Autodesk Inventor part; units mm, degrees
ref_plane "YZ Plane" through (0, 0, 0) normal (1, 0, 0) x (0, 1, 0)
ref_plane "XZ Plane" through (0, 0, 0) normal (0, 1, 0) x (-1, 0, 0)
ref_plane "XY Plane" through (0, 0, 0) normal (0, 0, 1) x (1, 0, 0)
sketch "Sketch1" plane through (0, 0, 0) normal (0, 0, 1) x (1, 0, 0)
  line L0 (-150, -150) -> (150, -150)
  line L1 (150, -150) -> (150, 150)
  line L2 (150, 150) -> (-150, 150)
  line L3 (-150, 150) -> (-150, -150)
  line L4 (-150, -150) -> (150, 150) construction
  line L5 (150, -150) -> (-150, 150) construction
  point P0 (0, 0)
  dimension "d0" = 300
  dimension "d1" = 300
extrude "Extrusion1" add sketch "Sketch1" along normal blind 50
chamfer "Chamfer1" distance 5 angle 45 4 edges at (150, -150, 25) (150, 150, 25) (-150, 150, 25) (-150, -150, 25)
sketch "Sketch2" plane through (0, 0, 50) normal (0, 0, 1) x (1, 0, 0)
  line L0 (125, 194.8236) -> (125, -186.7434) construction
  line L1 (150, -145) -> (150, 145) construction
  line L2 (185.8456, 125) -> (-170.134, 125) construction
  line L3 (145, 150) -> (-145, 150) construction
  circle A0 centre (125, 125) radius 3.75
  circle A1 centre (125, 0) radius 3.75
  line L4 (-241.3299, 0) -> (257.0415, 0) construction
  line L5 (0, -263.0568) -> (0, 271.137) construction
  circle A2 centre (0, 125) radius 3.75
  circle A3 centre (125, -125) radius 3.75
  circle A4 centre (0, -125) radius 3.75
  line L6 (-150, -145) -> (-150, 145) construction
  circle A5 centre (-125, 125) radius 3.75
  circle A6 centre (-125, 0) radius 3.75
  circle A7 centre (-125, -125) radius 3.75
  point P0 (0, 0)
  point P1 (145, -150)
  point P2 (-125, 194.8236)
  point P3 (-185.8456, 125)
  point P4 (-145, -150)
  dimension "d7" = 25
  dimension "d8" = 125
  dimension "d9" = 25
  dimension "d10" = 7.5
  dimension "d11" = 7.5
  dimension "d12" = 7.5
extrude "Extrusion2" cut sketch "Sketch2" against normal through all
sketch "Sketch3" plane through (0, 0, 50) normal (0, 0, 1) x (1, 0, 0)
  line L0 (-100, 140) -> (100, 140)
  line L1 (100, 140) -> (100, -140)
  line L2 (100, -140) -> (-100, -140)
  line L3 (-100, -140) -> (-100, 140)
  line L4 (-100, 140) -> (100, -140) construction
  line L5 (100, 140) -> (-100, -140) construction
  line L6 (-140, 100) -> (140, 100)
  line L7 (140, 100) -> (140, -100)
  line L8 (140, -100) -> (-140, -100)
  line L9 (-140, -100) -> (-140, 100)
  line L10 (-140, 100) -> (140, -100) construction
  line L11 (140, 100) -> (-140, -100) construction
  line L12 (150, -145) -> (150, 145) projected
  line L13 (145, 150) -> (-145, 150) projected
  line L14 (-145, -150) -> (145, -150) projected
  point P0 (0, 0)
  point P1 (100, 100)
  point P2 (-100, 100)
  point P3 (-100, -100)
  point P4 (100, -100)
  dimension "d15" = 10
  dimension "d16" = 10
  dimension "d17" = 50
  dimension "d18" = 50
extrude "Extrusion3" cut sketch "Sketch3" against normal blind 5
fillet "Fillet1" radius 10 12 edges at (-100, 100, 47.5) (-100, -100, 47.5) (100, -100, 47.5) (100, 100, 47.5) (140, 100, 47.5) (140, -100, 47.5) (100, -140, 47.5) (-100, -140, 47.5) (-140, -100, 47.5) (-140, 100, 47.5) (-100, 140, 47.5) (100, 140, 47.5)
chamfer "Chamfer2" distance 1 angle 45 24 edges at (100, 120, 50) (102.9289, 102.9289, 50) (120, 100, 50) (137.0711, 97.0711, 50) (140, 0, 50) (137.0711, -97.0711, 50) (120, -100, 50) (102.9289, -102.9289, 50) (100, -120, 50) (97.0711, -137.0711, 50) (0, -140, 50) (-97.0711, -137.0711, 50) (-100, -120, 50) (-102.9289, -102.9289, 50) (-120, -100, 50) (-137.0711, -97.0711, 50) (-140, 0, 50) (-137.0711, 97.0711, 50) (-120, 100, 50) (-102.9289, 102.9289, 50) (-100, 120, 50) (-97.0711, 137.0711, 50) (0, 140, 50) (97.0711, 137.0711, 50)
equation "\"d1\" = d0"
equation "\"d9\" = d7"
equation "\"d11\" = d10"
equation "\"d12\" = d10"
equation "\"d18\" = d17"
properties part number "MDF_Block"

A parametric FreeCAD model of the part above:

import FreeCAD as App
import Part
import Sketcher
from FreeCAD import Vector


def edges_at(feature, points):
    """Names of the edges that pass closest to the given points."""
    edges = feature.Shape.Edges
    near = lambda p: min(range(len(edges)), key=lambda i: edges[i].distToShape(Part.Vertex(*p))[0])
    return sorted({f"Edge{near(p) + 1}" for p in points})


def add_polygon(sketch, points):
    """Adds a closed chain of lines whose ends are joined by coincident constraints."""
    first, n = sketch.GeometryCount, len(points)
    for a, b in zip(points, points[1:] + points[:1]):
        sketch.addGeometry(Part.LineSegment(App.Vector(*a, 0), App.Vector(*b, 0)), False)
    for i in range(n):
        sketch.addConstraint(Sketcher.Constraint("Coincident", first + i, 2, first + (i + 1) % n, 1))

doc = App.newDocument("Part")
params = doc.addObject("Spreadsheet::Sheet", "Params")
for row, (alias, value) in enumerate([
    ("sketch1_width", "300 mm"),
    ("pad1_length", "50 mm"),
    ("chamfer_size", "5 mm"),
    ("sketch2_diameter", "7.5 mm"),
    ("sketch3_width", "200 mm"),
    ("sketch3_width2", "40 mm"),
    ("pocket2_length", "5 mm"),
    ("fillet_radius", "10 mm"),
    ("chamfer2_size", "1 mm"),
], start=1):
    params.set(f"A{row}", alias)
    params.set(f"B{row}", "=" + value)
    params.setAlias(f"B{row}", alias)

body = doc.addObject("PartDesign::Body", "Body")

# Sketch on XY plane
sketch1 = doc.addObject("Sketcher::SketchObject", "Sketch")
body.addObject(sketch1)
sketch1.AttachmentSupport = (doc.XY_Plane, [""])
sketch1.MapMode = "FlatFace"
add_polygon(sketch1, [(-150, 150), (-150, -150), (150, -150), (150, 150)])  # lines 0-3
sketch1.addConstraint(Sketcher.Constraint("Vertical", 0))
sketch1.addConstraint(Sketcher.Constraint("Horizontal", 1))
sketch1.addConstraint(Sketcher.Constraint("Vertical", 2))
sketch1.addConstraint(Sketcher.Constraint("Horizontal", 3))
sketch1.addConstraint(Sketcher.Constraint("Symmetric", 0, 2, 2, 2, -1, 1))
sketch1.addConstraint(Sketcher.Constraint("Equal", 3, 0))
sketch1.addConstraint(Sketcher.Constraint("DistanceX", 1, 1, 1, 2, 300.0))
sketch1.setExpression("Constraints[10]", "Params.sketch1_width")
pad1 = doc.addObject("PartDesign::Pad", "Pad")
body.addObject(pad1)
pad1.Profile = sketch1
pad1.setExpression("Length", "Params.pad1_length")
doc.recompute()

chamfer = doc.addObject("PartDesign::Chamfer", "Chamfer")
body.addObject(chamfer)
chamfer.Base = (pad1, edges_at(pad1, [
    (150, -150, 25),
    (150, 150, 25),
    (-150, 150, 25),
    (-150, -150, 25),
]))
chamfer.setExpression("Size", "Params.chamfer_size")

# Sketch on XY plane
sketch2 = doc.addObject("Sketcher::SketchObject", "Sketch001")
body.addObject(sketch2)
sketch2.AttachmentSupport = (doc.XY_Plane, [""])
sketch2.MapMode = "FlatFace"
sketch2.AttachmentOffset = App.Placement(Vector(0, 0, 50), App.Rotation())
sketch2.addGeometry(Part.Circle(Vector(125, 125, 0), Vector(0, 0, 1), 3.75), False)
sketch2.addGeometry(Part.Circle(Vector(125, 0, 0), Vector(0, 0, 1), 3.75), False)
sketch2.addGeometry(Part.Circle(Vector(0, 125, 0), Vector(0, 0, 1), 3.75), False)
sketch2.addGeometry(Part.Circle(Vector(125, -125, 0), Vector(0, 0, 1), 3.75), False)
sketch2.addGeometry(Part.Circle(Vector(0, -125, 0), Vector(0, 0, 1), 3.75), False)
sketch2.addGeometry(Part.Circle(Vector(-125, 125, 0), Vector(0, 0, 1), 3.75), False)
sketch2.addGeometry(Part.Circle(Vector(-125, 0, 0), Vector(0, 0, 1), 3.75), False)
sketch2.addGeometry(Part.Circle(Vector(-125, -125, 0), Vector(0, 0, 1), 3.75), False)
sketch2.addConstraint(Sketcher.Constraint("Equal", 0, 1))
sketch2.addConstraint(Sketcher.Constraint("Equal", 1, 2))
sketch2.addConstraint(Sketcher.Constraint("Equal", 2, 3))
sketch2.addConstraint(Sketcher.Constraint("Equal", 3, 4))
sketch2.addConstraint(Sketcher.Constraint("Equal", 4, 5))
sketch2.addConstraint(Sketcher.Constraint("Equal", 5, 6))
sketch2.addConstraint(Sketcher.Constraint("Equal", 6, 7))
sketch2.addConstraint(Sketcher.Constraint("Symmetric", 2, 3, 4, 3, -1, 1))
sketch2.addConstraint(Sketcher.Constraint("Symmetric", 3, 3, 5, 3, -1, 1))
sketch2.addConstraint(Sketcher.Constraint("Symmetric", 1, 3, 6, 3, -1, 1))
sketch2.addConstraint(Sketcher.Constraint("Symmetric", 0, 3, 7, 3, -1, 1))
sketch2.addConstraint(Sketcher.Constraint("Symmetric", 0, 3, 5, 3, -2))
sketch2.addConstraint(Sketcher.Constraint("PointOnObject", 1, 3, -1))
sketch2.addConstraint(Sketcher.Constraint("PointOnObject", 2, 3, -2))
sketch2.addConstraint(Sketcher.Constraint("Horizontal", 0, 3, 2, 3))
sketch2.addConstraint(Sketcher.Constraint("Vertical", 0, 3, 1, 3))
sketch2.addConstraint(Sketcher.Constraint("Diameter", 0, 7.5))
sketch2.addConstraint(Sketcher.Constraint("DistanceX", -1, 1, 0, 3, 125.0))
sketch2.addConstraint(Sketcher.Constraint("DistanceY", -1, 1, 0, 3, 125.0))
sketch2.setExpression("Constraints[16]", "Params.sketch2_diameter")
pocket1 = doc.addObject("PartDesign::Pocket", "Pocket")
body.addObject(pocket1)
pocket1.Profile = sketch2
pocket1.Type = "ThroughAll"

# Sketch on XY plane
sketch3 = doc.addObject("Sketcher::SketchObject", "Sketch002")
body.addObject(sketch3)
sketch3.AttachmentSupport = (doc.XY_Plane, [""])
sketch3.MapMode = "FlatFace"
sketch3.AttachmentOffset = App.Placement(Vector(0, 0, 50), App.Rotation())
add_polygon(sketch3, [(100, 140), (-100, 140), (-100, 100), (-140, 100), (-140, -100), (-100, -100), (-100, -140), (100, -140), (100, -100), (140, -100), (140, 100), (100, 100)])  # lines 0-11
sketch3.addConstraint(Sketcher.Constraint("Horizontal", 0))
sketch3.addConstraint(Sketcher.Constraint("Vertical", 1))
sketch3.addConstraint(Sketcher.Constraint("Horizontal", 2))
sketch3.addConstraint(Sketcher.Constraint("Vertical", 3))
sketch3.addConstraint(Sketcher.Constraint("Horizontal", 4))
sketch3.addConstraint(Sketcher.Constraint("Vertical", 5))
sketch3.addConstraint(Sketcher.Constraint("Horizontal", 6))
sketch3.addConstraint(Sketcher.Constraint("Vertical", 7))
sketch3.addConstraint(Sketcher.Constraint("Horizontal", 8))
sketch3.addConstraint(Sketcher.Constraint("Vertical", 9))
sketch3.addConstraint(Sketcher.Constraint("Horizontal", 10))
sketch3.addConstraint(Sketcher.Constraint("Vertical", 11))
sketch3.addConstraint(Sketcher.Constraint("Symmetric", 0, 2, 6, 2, -1, 1))
sketch3.addConstraint(Sketcher.Constraint("Symmetric", 2, 2, 8, 2, -1, 1))
sketch3.addConstraint(Sketcher.Constraint("Symmetric", 4, 2, 10, 2, -1, 1))
sketch3.addConstraint(Sketcher.Constraint("Symmetric", 4, 2, 7, 2, -2))
sketch3.addConstraint(Sketcher.Constraint("Equal", 10, 1))
sketch3.addConstraint(Sketcher.Constraint("Equal", 6, 3))
sketch3.addConstraint(Sketcher.Constraint("DistanceX", 0, 2, 0, 1, 200.0))
sketch3.addConstraint(Sketcher.Constraint("DistanceX", 2, 2, 2, 1, 40.0))
sketch3.setExpression("Constraints[30]", "Params.sketch3_width")
sketch3.setExpression("Constraints[31]", "Params.sketch3_width2")
pocket2 = doc.addObject("PartDesign::Pocket", "Pocket001")
body.addObject(pocket2)
pocket2.Profile = sketch3
pocket2.setExpression("Length", "Params.pocket2_length")
doc.recompute()

fillet = doc.addObject("PartDesign::Fillet", "Fillet")
body.addObject(fillet)
fillet.Base = (pocket2, edges_at(pocket2, [
    (-100, 100, 47.5),
    (-100, -100, 47.5),
    (100, -100, 47.5),
    (100, 100, 47.5),
    (140, 100, 47.5),
    (140, -100, 47.5),
    (100, -140, 47.5),
    (-100, -140, 47.5),
    (-140, -100, 47.5),
    (-140, 100, 47.5),
    (-100, 140, 47.5),
    (100, 140, 47.5),
]))
fillet.setExpression("Radius", "Params.fillet_radius")
doc.recompute()

chamfer2 = doc.addObject("PartDesign::Chamfer", "Chamfer001")
body.addObject(chamfer2)
chamfer2.Base = (fillet, edges_at(fillet, [
    (100, 120, 50),
    (102.929, 102.929, 50),
    (120, 100, 50),
    (137.071, 97.071, 50),
    (140, 0, 50),
    (137.071, -97.071, 50),
    (120, -100, 50),
    (102.929, -102.929, 50),
    (100, -120, 50),
    (97.071, -137.071, 50),
    (0, -140, 50),
    (-97.071, -137.071, 50),
    (-100, -120, 50),
    (-102.929, -102.929, 50),
    (-120, -100, 50),
    (-137.071, -97.071, 50),
    (-140, 0, 50),
    (-137.071, 97.071, 50),
    (-120, 100, 50),
    (-102.929, 102.929, 50),
    (-100, 120, 50),
    (-97.071, 137.071, 50),
    (0, 140, 50),
    (97.071, 137.071, 50),
]))
chamfer2.setExpression("Size", "Params.chamfer2_size")

doc.recompute()
